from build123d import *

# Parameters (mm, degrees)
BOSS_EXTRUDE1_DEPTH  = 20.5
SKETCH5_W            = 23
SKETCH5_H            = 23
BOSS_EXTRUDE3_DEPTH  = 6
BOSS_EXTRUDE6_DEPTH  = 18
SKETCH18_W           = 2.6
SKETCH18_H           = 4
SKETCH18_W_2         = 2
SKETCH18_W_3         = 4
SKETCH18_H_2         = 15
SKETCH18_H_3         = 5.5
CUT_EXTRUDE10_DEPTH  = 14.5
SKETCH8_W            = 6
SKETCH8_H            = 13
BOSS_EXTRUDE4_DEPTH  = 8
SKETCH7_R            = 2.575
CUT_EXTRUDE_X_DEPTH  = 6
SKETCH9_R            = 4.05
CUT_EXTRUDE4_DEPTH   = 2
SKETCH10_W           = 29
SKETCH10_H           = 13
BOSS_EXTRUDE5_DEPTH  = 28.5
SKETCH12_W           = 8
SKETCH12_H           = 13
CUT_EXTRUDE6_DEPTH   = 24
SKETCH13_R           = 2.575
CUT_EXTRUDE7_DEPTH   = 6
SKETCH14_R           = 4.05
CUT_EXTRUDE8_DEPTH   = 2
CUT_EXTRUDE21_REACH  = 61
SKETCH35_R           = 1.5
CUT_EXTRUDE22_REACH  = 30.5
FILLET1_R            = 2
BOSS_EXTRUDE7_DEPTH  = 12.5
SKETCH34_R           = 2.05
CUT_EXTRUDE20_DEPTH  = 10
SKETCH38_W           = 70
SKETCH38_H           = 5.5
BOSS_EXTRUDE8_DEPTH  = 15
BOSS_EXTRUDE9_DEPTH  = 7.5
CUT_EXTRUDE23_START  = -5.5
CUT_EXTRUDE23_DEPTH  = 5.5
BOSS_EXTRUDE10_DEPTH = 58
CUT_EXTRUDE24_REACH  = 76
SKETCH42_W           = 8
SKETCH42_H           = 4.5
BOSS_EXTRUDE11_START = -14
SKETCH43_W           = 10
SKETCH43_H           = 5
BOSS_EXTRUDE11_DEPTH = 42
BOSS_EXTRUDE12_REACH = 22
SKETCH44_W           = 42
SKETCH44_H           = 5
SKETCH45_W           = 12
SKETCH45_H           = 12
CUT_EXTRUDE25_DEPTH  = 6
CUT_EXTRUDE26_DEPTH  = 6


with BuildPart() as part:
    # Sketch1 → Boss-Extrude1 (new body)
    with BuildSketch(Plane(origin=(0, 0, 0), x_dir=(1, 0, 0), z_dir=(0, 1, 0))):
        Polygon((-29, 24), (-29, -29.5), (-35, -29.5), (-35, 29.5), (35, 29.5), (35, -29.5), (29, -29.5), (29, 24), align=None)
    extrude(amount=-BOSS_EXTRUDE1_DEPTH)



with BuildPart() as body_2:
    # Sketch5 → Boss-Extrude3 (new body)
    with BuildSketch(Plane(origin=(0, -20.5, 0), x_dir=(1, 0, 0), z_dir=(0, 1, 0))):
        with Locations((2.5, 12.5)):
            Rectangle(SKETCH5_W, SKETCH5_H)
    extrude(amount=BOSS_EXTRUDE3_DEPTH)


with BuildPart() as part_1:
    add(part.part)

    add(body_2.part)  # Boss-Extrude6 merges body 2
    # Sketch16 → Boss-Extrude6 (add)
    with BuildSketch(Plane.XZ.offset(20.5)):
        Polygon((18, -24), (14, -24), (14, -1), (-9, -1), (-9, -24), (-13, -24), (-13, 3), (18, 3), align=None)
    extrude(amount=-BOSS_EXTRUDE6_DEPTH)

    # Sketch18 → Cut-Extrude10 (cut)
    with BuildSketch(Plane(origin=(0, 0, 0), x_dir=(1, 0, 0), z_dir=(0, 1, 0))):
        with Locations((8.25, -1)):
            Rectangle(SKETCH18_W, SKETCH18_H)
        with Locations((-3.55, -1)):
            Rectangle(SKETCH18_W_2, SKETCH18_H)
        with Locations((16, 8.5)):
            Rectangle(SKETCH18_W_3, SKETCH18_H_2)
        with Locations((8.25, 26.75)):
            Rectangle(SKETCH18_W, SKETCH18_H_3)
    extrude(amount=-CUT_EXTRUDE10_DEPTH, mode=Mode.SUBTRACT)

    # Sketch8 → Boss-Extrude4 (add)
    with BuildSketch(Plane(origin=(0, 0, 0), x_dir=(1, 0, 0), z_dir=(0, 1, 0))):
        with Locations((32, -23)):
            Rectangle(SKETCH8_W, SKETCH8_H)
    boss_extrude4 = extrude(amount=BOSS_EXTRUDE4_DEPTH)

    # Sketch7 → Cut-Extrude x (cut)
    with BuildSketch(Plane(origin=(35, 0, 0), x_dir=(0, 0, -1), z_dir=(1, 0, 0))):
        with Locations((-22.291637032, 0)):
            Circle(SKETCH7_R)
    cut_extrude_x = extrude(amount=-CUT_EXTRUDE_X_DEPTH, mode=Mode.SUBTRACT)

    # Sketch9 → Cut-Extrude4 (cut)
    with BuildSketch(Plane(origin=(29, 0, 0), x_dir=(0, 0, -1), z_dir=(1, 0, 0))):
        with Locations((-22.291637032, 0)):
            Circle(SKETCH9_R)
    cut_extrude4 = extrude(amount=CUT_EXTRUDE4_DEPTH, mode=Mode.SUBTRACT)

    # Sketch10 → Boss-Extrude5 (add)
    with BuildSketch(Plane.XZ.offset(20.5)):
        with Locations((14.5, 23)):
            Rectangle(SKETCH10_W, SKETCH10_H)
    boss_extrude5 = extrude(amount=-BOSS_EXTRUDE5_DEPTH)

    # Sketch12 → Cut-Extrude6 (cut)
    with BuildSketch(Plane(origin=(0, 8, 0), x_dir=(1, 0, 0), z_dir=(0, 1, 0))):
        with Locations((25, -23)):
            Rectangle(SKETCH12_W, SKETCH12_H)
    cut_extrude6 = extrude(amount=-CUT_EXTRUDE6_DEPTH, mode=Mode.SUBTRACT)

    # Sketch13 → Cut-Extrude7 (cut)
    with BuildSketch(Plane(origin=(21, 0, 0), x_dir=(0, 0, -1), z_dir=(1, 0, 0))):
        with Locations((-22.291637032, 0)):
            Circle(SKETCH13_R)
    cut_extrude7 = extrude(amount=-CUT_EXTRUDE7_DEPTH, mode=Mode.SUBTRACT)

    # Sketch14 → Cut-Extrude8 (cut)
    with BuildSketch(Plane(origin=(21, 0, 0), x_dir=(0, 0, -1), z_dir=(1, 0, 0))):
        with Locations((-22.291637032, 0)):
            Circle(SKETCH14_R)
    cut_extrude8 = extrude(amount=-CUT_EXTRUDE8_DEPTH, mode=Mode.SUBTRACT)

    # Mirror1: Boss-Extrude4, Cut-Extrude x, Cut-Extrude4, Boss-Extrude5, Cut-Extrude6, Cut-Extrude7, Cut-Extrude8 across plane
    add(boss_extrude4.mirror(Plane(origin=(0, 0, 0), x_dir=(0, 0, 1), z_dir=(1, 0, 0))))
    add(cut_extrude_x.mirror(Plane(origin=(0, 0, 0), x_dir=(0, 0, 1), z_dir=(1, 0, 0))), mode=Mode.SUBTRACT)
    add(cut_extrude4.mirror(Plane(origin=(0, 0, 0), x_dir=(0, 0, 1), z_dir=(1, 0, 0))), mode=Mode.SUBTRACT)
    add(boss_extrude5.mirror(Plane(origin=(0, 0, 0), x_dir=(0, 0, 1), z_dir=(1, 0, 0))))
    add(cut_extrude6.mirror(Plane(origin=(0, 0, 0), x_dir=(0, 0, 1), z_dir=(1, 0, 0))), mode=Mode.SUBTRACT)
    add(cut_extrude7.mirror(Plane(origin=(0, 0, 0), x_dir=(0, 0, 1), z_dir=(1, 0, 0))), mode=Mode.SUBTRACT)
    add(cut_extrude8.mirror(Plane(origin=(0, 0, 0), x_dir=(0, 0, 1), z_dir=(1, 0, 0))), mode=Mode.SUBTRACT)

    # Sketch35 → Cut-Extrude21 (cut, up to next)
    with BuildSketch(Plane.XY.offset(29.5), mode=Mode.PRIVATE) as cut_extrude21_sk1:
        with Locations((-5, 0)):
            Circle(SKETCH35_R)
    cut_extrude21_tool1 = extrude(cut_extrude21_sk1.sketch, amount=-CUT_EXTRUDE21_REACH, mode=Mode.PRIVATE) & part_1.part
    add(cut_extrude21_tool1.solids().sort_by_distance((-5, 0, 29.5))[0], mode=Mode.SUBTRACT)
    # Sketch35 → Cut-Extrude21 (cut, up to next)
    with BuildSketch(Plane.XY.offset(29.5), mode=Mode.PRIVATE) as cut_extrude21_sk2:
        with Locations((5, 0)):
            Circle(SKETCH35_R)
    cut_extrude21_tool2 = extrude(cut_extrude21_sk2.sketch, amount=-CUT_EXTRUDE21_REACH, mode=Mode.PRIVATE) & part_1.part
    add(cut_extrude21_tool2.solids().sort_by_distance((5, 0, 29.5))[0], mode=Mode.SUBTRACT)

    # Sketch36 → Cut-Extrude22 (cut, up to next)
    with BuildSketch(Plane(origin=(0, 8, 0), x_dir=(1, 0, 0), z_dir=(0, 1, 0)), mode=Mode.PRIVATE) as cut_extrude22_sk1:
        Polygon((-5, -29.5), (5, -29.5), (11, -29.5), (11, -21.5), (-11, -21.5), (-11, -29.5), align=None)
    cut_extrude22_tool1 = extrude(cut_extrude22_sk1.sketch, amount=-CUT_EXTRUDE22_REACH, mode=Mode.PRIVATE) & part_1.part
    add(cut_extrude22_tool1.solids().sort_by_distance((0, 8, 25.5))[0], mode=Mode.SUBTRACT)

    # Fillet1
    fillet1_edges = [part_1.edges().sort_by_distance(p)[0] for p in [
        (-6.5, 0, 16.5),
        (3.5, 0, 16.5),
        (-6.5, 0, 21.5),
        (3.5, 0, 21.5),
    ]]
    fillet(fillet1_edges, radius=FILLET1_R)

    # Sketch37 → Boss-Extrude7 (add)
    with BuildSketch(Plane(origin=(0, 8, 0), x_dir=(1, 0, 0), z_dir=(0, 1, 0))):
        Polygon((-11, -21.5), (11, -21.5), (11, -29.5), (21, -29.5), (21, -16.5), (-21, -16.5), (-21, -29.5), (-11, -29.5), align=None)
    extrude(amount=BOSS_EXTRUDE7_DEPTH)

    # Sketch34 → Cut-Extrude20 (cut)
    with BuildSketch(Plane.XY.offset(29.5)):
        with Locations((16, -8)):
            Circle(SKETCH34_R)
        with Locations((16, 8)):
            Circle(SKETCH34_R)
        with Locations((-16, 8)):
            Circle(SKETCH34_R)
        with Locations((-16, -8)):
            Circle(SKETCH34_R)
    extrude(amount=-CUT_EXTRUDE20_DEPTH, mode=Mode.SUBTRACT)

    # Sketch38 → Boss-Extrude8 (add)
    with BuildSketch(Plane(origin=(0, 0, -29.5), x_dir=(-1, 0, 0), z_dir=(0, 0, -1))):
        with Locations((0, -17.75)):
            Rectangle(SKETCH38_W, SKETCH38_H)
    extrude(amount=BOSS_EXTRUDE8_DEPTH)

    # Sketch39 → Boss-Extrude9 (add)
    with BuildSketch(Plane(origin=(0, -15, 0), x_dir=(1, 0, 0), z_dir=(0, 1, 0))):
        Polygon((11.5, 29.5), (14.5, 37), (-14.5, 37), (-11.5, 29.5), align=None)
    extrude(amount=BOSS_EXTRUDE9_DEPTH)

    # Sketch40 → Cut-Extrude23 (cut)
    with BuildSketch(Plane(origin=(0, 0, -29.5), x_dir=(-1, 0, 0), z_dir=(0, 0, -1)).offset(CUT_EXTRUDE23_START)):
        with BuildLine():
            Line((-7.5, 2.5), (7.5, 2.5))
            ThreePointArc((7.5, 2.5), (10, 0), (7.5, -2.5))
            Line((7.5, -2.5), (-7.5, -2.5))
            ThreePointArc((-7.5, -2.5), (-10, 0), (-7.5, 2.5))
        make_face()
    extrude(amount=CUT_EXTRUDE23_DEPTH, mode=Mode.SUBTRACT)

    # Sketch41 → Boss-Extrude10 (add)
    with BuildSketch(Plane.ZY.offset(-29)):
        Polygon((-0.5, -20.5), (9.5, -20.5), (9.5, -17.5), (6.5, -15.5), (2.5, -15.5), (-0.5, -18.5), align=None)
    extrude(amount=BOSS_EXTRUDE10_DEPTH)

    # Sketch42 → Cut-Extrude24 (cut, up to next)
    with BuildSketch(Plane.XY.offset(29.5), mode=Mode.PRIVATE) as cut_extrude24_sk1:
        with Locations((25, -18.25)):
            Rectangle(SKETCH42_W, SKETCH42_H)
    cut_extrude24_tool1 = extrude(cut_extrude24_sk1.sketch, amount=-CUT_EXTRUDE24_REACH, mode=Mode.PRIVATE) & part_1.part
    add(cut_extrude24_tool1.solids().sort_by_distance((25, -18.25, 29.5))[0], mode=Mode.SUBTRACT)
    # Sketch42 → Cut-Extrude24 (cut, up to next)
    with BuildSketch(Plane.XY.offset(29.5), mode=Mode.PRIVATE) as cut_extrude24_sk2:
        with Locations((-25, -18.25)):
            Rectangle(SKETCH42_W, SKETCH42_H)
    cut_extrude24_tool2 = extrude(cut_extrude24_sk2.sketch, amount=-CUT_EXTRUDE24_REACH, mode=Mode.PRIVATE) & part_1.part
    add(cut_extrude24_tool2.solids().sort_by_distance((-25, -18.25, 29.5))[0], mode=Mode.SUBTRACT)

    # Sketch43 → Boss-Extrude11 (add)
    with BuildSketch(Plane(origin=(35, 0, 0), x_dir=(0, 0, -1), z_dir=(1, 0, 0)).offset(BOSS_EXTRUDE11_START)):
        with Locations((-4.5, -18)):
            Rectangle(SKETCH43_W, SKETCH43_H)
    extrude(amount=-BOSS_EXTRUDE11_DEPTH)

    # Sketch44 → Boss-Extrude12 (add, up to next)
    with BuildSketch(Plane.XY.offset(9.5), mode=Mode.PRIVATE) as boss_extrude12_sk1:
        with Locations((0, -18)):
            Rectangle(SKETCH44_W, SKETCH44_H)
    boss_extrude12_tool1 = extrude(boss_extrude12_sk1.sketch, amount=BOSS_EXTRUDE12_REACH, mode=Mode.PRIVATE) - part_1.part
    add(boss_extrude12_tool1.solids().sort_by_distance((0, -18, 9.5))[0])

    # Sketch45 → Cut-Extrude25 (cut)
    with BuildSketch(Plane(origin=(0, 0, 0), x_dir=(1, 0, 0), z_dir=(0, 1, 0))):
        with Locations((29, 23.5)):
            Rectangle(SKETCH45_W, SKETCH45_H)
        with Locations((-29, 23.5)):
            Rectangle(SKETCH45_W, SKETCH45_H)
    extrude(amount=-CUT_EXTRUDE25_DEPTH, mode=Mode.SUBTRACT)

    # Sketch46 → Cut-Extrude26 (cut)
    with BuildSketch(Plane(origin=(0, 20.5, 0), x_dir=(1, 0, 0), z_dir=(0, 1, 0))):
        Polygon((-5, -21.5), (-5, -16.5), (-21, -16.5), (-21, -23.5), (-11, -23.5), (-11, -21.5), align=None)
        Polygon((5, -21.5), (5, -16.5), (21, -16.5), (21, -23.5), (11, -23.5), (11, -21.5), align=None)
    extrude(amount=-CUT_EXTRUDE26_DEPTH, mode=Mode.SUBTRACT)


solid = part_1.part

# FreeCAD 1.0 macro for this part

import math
import FreeCAD as App
import Part
import Sketcher

V = App.Vector
Q = App.Units.Quantity


def edges_at(feature, points):
    """Names of the edges that pass closest to the given points."""
    edges = feature.Shape.Edges
    near = lambda p: min(range(len(edges)), key=lambda i: edges[i].distToShape(Part.Vertex(*p))[0])
    return sorted({f"Edge{near(p) + 1}" for p in points})

doc = App.newDocument("Part")
body = doc.addObject("PartDesign::Body", "Body")

# Sketch on XZ plane
sketch1 = body.newObject("Sketcher::SketchObject", "Sketch")
sketch1.AttachmentSupport = (doc.getObject("XZ_Plane"), [""])
sketch1.MapMode = "FlatFace"
sketch1.addGeometry([
    Part.LineSegment(V(-29, 29.5, 0), V(-29, -24, 0)),  # 0
    Part.LineSegment(V(-29, -24, 0), V(29, -24, 0)),  # 1
    Part.LineSegment(V(29, -24, 0), V(29, 29.5, 0)),  # 2
    Part.LineSegment(V(29, 29.5, 0), V(35, 29.5, 0)),  # 3
    Part.LineSegment(V(35, 29.5, 0), V(35, -29.5, 0)),  # 4
    Part.LineSegment(V(35, -29.5, 0), V(-35, -29.5, 0)),  # 5
    Part.LineSegment(V(-35, -29.5, 0), V(-35, 29.5, 0)),  # 6
    Part.LineSegment(V(-35, 29.5, 0), V(-29, 29.5, 0)),  # 7
], False)
sketch1.addConstraint([
    Sketcher.Constraint("Coincident", 0, 2, 1, 1),
    Sketcher.Constraint("Coincident", 1, 2, 2, 1),
    Sketcher.Constraint("Coincident", 2, 2, 3, 1),
    Sketcher.Constraint("Coincident", 3, 2, 4, 1),
    Sketcher.Constraint("Coincident", 4, 2, 5, 1),
    Sketcher.Constraint("Coincident", 5, 2, 6, 1),
    Sketcher.Constraint("Coincident", 6, 2, 7, 1),
    Sketcher.Constraint("Coincident", 7, 2, 0, 1),
    Sketcher.Constraint("Vertical", 0),
    Sketcher.Constraint("Horizontal", 1),
    Sketcher.Constraint("Vertical", 2),
    Sketcher.Constraint("Horizontal", 3),
    Sketcher.Constraint("Vertical", 4),
    Sketcher.Constraint("Horizontal", 5),
    Sketcher.Constraint("Vertical", 6),
    Sketcher.Constraint("Horizontal", 7),
    Sketcher.Constraint("Symmetric", 3, 2, 5, 2, -1, 1),
    Sketcher.Constraint("Symmetric", 2, 2, 7, 2, -2),
    Sketcher.Constraint("DistanceX", 1, 1, 1, 2, Q("58 mm")),
    Sketcher.Constraint("DistanceX", 3, 1, 3, 2, Q("6 mm")),
    Sketcher.Constraint("DistanceY", 4, 2, 4, 1, Q("59 mm")),
    Sketcher.Constraint("DistanceY", 0, 2, 0, 1, Q("53.5 mm")),
])
pad1 = body.newObject("PartDesign::Pad", "Pad")
pad1.Profile = sketch1
pad1.Length = 20.5
body2 = doc.addObject("PartDesign::Body", "Body001")

# Sketch on XZ plane
sketch2 = body2.newObject("Sketcher::SketchObject", "Sketch001")
sketch2.AttachmentSupport = (doc.getObject("XZ_Plane001"), [""])
sketch2.MapMode = "FlatFace"
sketch2.AttachmentOffset = App.Placement(V(0, 0, 20.5), App.Rotation())
sketch2.addGeometry([
    Part.LineSegment(V(-9, -24, 0), V(-9, -1, 0)),
    Part.LineSegment(V(-9, -1, 0), V(14, -1, 0)),
    Part.LineSegment(V(14, -1, 0), V(14, -24, 0)),
    Part.LineSegment(V(14, -24, 0), V(-9, -24, 0)),
], False)
sketch2.addConstraint([
    Sketcher.Constraint("Coincident", 0, 2, 1, 1),
    Sketcher.Constraint("Coincident", 1, 2, 2, 1),
    Sketcher.Constraint("Coincident", 2, 2, 3, 1),
    Sketcher.Constraint("Coincident", 3, 2, 0, 1),
    Sketcher.Constraint("Vertical", 0),
    Sketcher.Constraint("Horizontal", 1),
    Sketcher.Constraint("Vertical", 2),
    Sketcher.Constraint("Horizontal", 3),
    Sketcher.Constraint("Equal", 3, 0),
    Sketcher.Constraint("DistanceX", 1, 1, 1, 2, Q("23 mm")),
    Sketcher.Constraint("DistanceX", 0, 2, -1, 1, Q("9 mm")),
    Sketcher.Constraint("DistanceY", 0, 2, -1, 1, Q("1 mm")),
])
pad2 = body2.newObject("PartDesign::Pad", "Pad001")
pad2.Profile = sketch2
pad2.Length = 6
pad2.Reversed = True
body.AllowCompound = True
doc.recompute()

boolean = body.newObject("PartDesign::Boolean", "Boolean")
boolean.Type = "Fuse"
boolean.addObjects([body2])

# Sketch on XZ plane
sketch3 = body.newObject("Sketcher::SketchObject", "Sketch002")
sketch3.AttachmentSupport = (doc.getObject("XZ_Plane"), [""])
sketch3.MapMode = "FlatFace"
sketch3.AttachmentOffset = App.Placement(V(0, 0, 20.5), App.Rotation())
sketch3.addGeometry([
    Part.LineSegment(V(14, -24, 0), V(18, -24, 0)),  # 0
    Part.LineSegment(V(18, -24, 0), V(18, 3, 0)),  # 1
    Part.LineSegment(V(18, 3, 0), V(-13, 3, 0)),  # 2
    Part.LineSegment(V(-13, 3, 0), V(-13, -24, 0)),  # 3
    Part.LineSegment(V(-13, -24, 0), V(-9, -24, 0)),  # 4
    Part.LineSegment(V(-9, -24, 0), V(-9, -1, 0)),  # 5
    Part.LineSegment(V(-9, -1, 0), V(14, -1, 0)),  # 6
    Part.LineSegment(V(14, -1, 0), V(14, -24, 0)),  # 7
], False)
sketch3.addConstraint([
    Sketcher.Constraint("Coincident", 0, 2, 1, 1),
    Sketcher.Constraint("Coincident", 1, 2, 2, 1),
    Sketcher.Constraint("Coincident", 2, 2, 3, 1),
    Sketcher.Constraint("Coincident", 3, 2, 4, 1),
    Sketcher.Constraint("Coincident", 4, 2, 5, 1),
    Sketcher.Constraint("Coincident", 5, 2, 6, 1),
    Sketcher.Constraint("Coincident", 6, 2, 7, 1),
    Sketcher.Constraint("Coincident", 7, 2, 0, 1),
    Sketcher.Constraint("Horizontal", 0),
    Sketcher.Constraint("Vertical", 1),
    Sketcher.Constraint("Horizontal", 2),
    Sketcher.Constraint("Vertical", 3),
    Sketcher.Constraint("Horizontal", 4),
    Sketcher.Constraint("Vertical", 5),
    Sketcher.Constraint("Horizontal", 6),
    Sketcher.Constraint("Vertical", 7),
    Sketcher.Constraint("Horizontal", 0, 2, 3, 2),
    Sketcher.Constraint("Equal", 0, 4),
    Sketcher.Constraint("Equal", 6, 5),
    Sketcher.Constraint("DistanceX", 0, 1, 0, 2, Q("4 mm")),
    Sketcher.Constraint("DistanceX", 2, 2, 2, 1, Q("31 mm")),
    Sketcher.Constraint("DistanceY", 1, 1, 1, 2, Q("27 mm")),
    Sketcher.Constraint("DistanceX", -1, 1, 0, 2, Q("18 mm")),
    Sketcher.Constraint("DistanceY", 0, 2, -1, 1, Q("24 mm")),
])
pad3 = body.newObject("PartDesign::Pad", "Pad002")
pad3.Profile = sketch3
pad3.Length = 18
pad3.Reversed = True

# Sketch on XZ plane
sketch4 = body.newObject("Sketcher::SketchObject", "Sketch003")
sketch4.AttachmentSupport = (doc.getObject("XZ_Plane"), [""])
sketch4.MapMode = "FlatFace"
sketch4.addGeometry([
    Part.LineSegment(V(6.95, -1, 0), V(6.95, 3, 0)),  # 0
    Part.LineSegment(V(6.95, 3, 0), V(9.55, 3, 0)),  # 1
    Part.LineSegment(V(9.55, 3, 0), V(9.55, -1, 0)),  # 2
    Part.LineSegment(V(9.55, -1, 0), V(6.95, -1, 0)),  # 3
    Part.LineSegment(V(-4.55, -1, 0), V(-4.55, 3, 0)),  # 4
    Part.LineSegment(V(-4.55, 3, 0), V(-2.55, 3, 0)),  # 5
    Part.LineSegment(V(-2.55, 3, 0), V(-2.55, -1, 0)),  # 6
    Part.LineSegment(V(-2.55, -1, 0), V(-4.55, -1, 0)),  # 7
    Part.LineSegment(V(14, -16, 0), V(14, -1, 0)),  # 8
    Part.LineSegment(V(14, -1, 0), V(18, -1, 0)),  # 9
    Part.LineSegment(V(18, -1, 0), V(18, -16, 0)),  # 10
    Part.LineSegment(V(18, -16, 0), V(14, -16, 0)),  # 11
    Part.LineSegment(V(6.95, -29.5, 0), V(6.95, -24, 0)),  # 12
    Part.LineSegment(V(6.95, -24, 0), V(9.55, -24, 0)),  # 13
    Part.LineSegment(V(9.55, -24, 0), V(9.55, -29.5, 0)),  # 14
    Part.LineSegment(V(9.55, -29.5, 0), V(6.95, -29.5, 0)),  # 15
], False)
sketch4.addConstraint([
    Sketcher.Constraint("Coincident", 0, 2, 1, 1),
    Sketcher.Constraint("Coincident", 1, 2, 2, 1),
    Sketcher.Constraint("Coincident", 2, 2, 3, 1),
    Sketcher.Constraint("Coincident", 3, 2, 0, 1),
    Sketcher.Constraint("Coincident", 4, 2, 5, 1),
    Sketcher.Constraint("Coincident", 5, 2, 6, 1),
    Sketcher.Constraint("Coincident", 6, 2, 7, 1),
    Sketcher.Constraint("Coincident", 7, 2, 4, 1),
    Sketcher.Constraint("Coincident", 8, 2, 9, 1),
    Sketcher.Constraint("Coincident", 9, 2, 10, 1),
    Sketcher.Constraint("Coincident", 10, 2, 11, 1),
    Sketcher.Constraint("Coincident", 11, 2, 8, 1),
    Sketcher.Constraint("Coincident", 12, 2, 13, 1),
    Sketcher.Constraint("Coincident", 13, 2, 14, 1),
    Sketcher.Constraint("Coincident", 14, 2, 15, 1),
    Sketcher.Constraint("Coincident", 15, 2, 12, 1),
    Sketcher.Constraint("Vertical", 0),
    Sketcher.Constraint("Horizontal", 1),
    Sketcher.Constraint("Vertical", 2),
    Sketcher.Constraint("Horizontal", 3),
    Sketcher.Constraint("Vertical", 4),
    Sketcher.Constraint("Horizontal", 5),
    Sketcher.Constraint("Vertical", 6),
    Sketcher.Constraint("Horizontal", 7),
    Sketcher.Constraint("Vertical", 8),
    Sketcher.Constraint("Horizontal", 9),
    Sketcher.Constraint("Vertical", 10),
    Sketcher.Constraint("Horizontal", 11),
    Sketcher.Constraint("Vertical", 12),
    Sketcher.Constraint("Horizontal", 13),
    Sketcher.Constraint("Vertical", 14),
    Sketcher.Constraint("Horizontal", 15),
    Sketcher.Constraint("Horizontal", 1, 2, 4, 2),
    Sketcher.Constraint("Horizontal", 3, 2, 6, 2),
    Sketcher.Constraint("Horizontal", 7, 2, 8, 2),
    Sketcher.Constraint("Vertical", 3, 2, 12, 2),
    Sketcher.Constraint("Vertical", 2, 2, 13, 2),
    Sketcher.Constraint("Equal", 11, 0),
    Sketcher.Constraint("DistanceX", 5, 1, 5, 2, Q("2 mm")),
    Sketcher.Constraint("DistanceX", 9, 1, 9, 2, Q("4 mm")),
    Sketcher.Constraint("DistanceY", 8, 1, 8, 2, Q("15 mm")),
    Sketcher.Constraint("DistanceX", 1, 1, 1, 2, Q("2.6 mm")),
    Sketcher.Constraint("DistanceY", 12, 1, 12, 2, Q("5.5 mm")),
    Sketcher.Constraint("DistanceY", -1, 1, 0, 2, Q("3 mm")),
    Sketcher.Constraint("DistanceX", -1, 1, 8, 2, Q("14 mm")),
    Sketcher.Constraint("DistanceY", 12, 2, -1, 1, Q("24 mm")),
    Sketcher.Constraint("DistanceX", 4, 2, 0, 2, Q("11.5 mm")),
    Sketcher.Constraint("DistanceX", -1, 1, 0, 2, Q("6.95 mm")),
])
pocket1 = body.newObject("PartDesign::Pocket", "Pocket")
pocket1.Profile = sketch4
pocket1.Length = 14.5
pocket1.Reversed = True

# Sketch on XZ plane
sketch5 = body.newObject("Sketcher::SketchObject", "Sketch004")
sketch5.AttachmentSupport = (doc.getObject("XZ_Plane"), [""])
sketch5.MapMode = "FlatFace"
sketch5.addGeometry([
    Part.LineSegment(V(29, 16.5, 0), V(29, 29.5, 0)),
    Part.LineSegment(V(29, 29.5, 0), V(35, 29.5, 0)),
    Part.LineSegment(V(35, 29.5, 0), V(35, 16.5, 0)),
    Part.LineSegment(V(35, 16.5, 0), V(29, 16.5, 0)),
], False)
sketch5.addConstraint([
    Sketcher.Constraint("Coincident", 0, 2, 1, 1),
    Sketcher.Constraint("Coincident", 1, 2, 2, 1),
    Sketcher.Constraint("Coincident", 2, 2, 3, 1),
    Sketcher.Constraint("Coincident", 3, 2, 0, 1),
    Sketcher.Constraint("Vertical", 0),
    Sketcher.Constraint("Horizontal", 1),
    Sketcher.Constraint("Vertical", 2),
    Sketcher.Constraint("Horizontal", 3),
    Sketcher.Constraint("DistanceX", 1, 1, 1, 2, Q("6 mm")),
    Sketcher.Constraint("DistanceY", 0, 1, 0, 2, Q("13 mm")),
    Sketcher.Constraint("DistanceX", -1, 1, 0, 2, Q("29 mm")),
    Sketcher.Constraint("DistanceY", -1, 1, 0, 2, Q("29.5 mm")),
])
pad4 = body.newObject("PartDesign::Pad", "Pad003")
pad4.Profile = sketch5
pad4.Length = 8
pad4.Reversed = True

# Sketch on YZ plane
sketch6 = body.newObject("Sketcher::SketchObject", "Sketch005")
sketch6.AttachmentSupport = (doc.getObject("YZ_Plane"), [""])
sketch6.MapMode = "FlatFace"
sketch6.AttachmentOffset = App.Placement(V(0, 0, 35), App.Rotation())
sketch6.addGeometry(Part.Circle(V(0, 22.291637, 0), V(0, 0, 1), 2.575), False)
sketch6.addConstraint([
    Sketcher.Constraint("PointOnObject", 0, 3, -2),
    Sketcher.Constraint("Diameter", 0, Q("5.15 mm")),
    Sketcher.Constraint("DistanceY", -1, 1, 0, 3, Q("22.291637 mm")),
])
pocket2 = body.newObject("PartDesign::Pocket", "Pocket001")
pocket2.Profile = sketch6
pocket2.Length = 6

# Sketch on YZ plane
sketch7 = body.newObject("Sketcher::SketchObject", "Sketch006")
sketch7.AttachmentSupport = (doc.getObject("YZ_Plane"), [""])
sketch7.MapMode = "FlatFace"
sketch7.AttachmentOffset = App.Placement(V(0, 0, 29), App.Rotation())
sketch7.addGeometry(Part.Circle(V(0, 22.291637, 0), V(0, 0, 1), 4.05), False)
sketch7.addConstraint([
    Sketcher.Constraint("PointOnObject", 0, 3, -2),
    Sketcher.Constraint("Diameter", 0, Q("8.1 mm")),
    Sketcher.Constraint("DistanceY", -1, 1, 0, 3, Q("22.291637 mm")),
])
pocket3 = body.newObject("PartDesign::Pocket", "Pocket002")
pocket3.Profile = sketch7
pocket3.Length = 2
pocket3.Reversed = True

# Sketch on XZ plane
sketch8 = body.newObject("Sketcher::SketchObject", "Sketch007")
sketch8.AttachmentSupport = (doc.getObject("XZ_Plane"), [""])
sketch8.MapMode = "FlatFace"
sketch8.AttachmentOffset = App.Placement(V(0, 0, 20.5), App.Rotation())
sketch8.addGeometry([
    Part.LineSegment(V(0, 29.5, 0), V(0, 16.5, 0)),
    Part.LineSegment(V(0, 16.5, 0), V(29, 16.5, 0)),
    Part.LineSegment(V(29, 16.5, 0), V(29, 29.5, 0)),
    Part.LineSegment(V(29, 29.5, 0), V(0, 29.5, 0)),
], False)
sketch8.addConstraint([
    Sketcher.Constraint("Coincident", 0, 2, 1, 1),
    Sketcher.Constraint("Coincident", 1, 2, 2, 1),
    Sketcher.Constraint("Coincident", 2, 2, 3, 1),
    Sketcher.Constraint("Coincident", 3, 2, 0, 1),
    Sketcher.Constraint("Vertical", 0),
    Sketcher.Constraint("Horizontal", 1),
    Sketcher.Constraint("Vertical", 2),
    Sketcher.Constraint("Horizontal", 3),
    Sketcher.Constraint("PointOnObject", 0, 2, -2),
    Sketcher.Constraint("DistanceX", 1, 1, 1, 2, Q("29 mm")),
    Sketcher.Constraint("DistanceY", 0, 2, 0, 1, Q("13 mm")),
    Sketcher.Constraint("DistanceY", -1, 1, 0, 2, Q("16.5 mm")),
])
pad5 = body.newObject("PartDesign::Pad", "Pad004")
pad5.Profile = sketch8
pad5.Length = 28.5
pad5.Reversed = True

# Sketch on XZ plane
sketch9 = body.newObject("Sketcher::SketchObject", "Sketch008")
sketch9.AttachmentSupport = (doc.getObject("XZ_Plane"), [""])
sketch9.MapMode = "FlatFace"
sketch9.AttachmentOffset = App.Placement(V(0, 0, -8), App.Rotation())
sketch9.addGeometry([
    Part.LineSegment(V(21, 16.5, 0), V(21, 29.5, 0)),
    Part.LineSegment(V(21, 29.5, 0), V(29, 29.5, 0)),
    Part.LineSegment(V(29, 29.5, 0), V(29, 16.5, 0)),
    Part.LineSegment(V(29, 16.5, 0), V(21, 16.5, 0)),
], False)
sketch9.addConstraint([
    Sketcher.Constraint("Coincident", 0, 2, 1, 1),
    Sketcher.Constraint("Coincident", 1, 2, 2, 1),
    Sketcher.Constraint("Coincident", 2, 2, 3, 1),
    Sketcher.Constraint("Coincident", 3, 2, 0, 1),
    Sketcher.Constraint("Vertical", 0),
    Sketcher.Constraint("Horizontal", 1),
    Sketcher.Constraint("Vertical", 2),
    Sketcher.Constraint("Horizontal", 3),
    Sketcher.Constraint("DistanceX", 1, 1, 1, 2, Q("8 mm")),
    Sketcher.Constraint("DistanceY", 0, 1, 0, 2, Q("13 mm")),
    Sketcher.Constraint("DistanceX", -1, 1, 0, 2, Q("21 mm")),
    Sketcher.Constraint("DistanceY", -1, 1, 0, 2, Q("29.5 mm")),
])
pocket4 = body.newObject("PartDesign::Pocket", "Pocket003")
pocket4.Profile = sketch9
pocket4.Length = 24
pocket4.Reversed = True

# Sketch on YZ plane
sketch10 = body.newObject("Sketcher::SketchObject", "Sketch009")
sketch10.AttachmentSupport = (doc.getObject("YZ_Plane"), [""])
sketch10.MapMode = "FlatFace"
sketch10.AttachmentOffset = App.Placement(V(0, 0, 21), App.Rotation())
sketch10.addGeometry(Part.Circle(V(0, 22.291637, 0), V(0, 0, 1), 2.575), False)
sketch10.addConstraint([
    Sketcher.Constraint("PointOnObject", 0, 3, -2),
    Sketcher.Constraint("Diameter", 0, Q("5.15 mm")),
    Sketcher.Constraint("DistanceY", -1, 1, 0, 3, Q("22.291637 mm")),
])
pocket5 = body.newObject("PartDesign::Pocket", "Pocket004")
pocket5.Profile = sketch10
pocket5.Length = 6

# Sketch on YZ plane
sketch11 = body.newObject("Sketcher::SketchObject", "Sketch010")
sketch11.AttachmentSupport = (doc.getObject("YZ_Plane"), [""])
sketch11.MapMode = "FlatFace"
sketch11.AttachmentOffset = App.Placement(V(0, 0, 21), App.Rotation())
sketch11.addGeometry(Part.Circle(V(0, 22.291637, 0), V(0, 0, 1), 4.05), False)
sketch11.addConstraint([
    Sketcher.Constraint("PointOnObject", 0, 3, -2),
    Sketcher.Constraint("Diameter", 0, Q("8.1 mm")),
    Sketcher.Constraint("DistanceY", -1, 1, 0, 3, Q("22.291637 mm")),
])
pocket6 = body.newObject("PartDesign::Pocket", "Pocket005")
pocket6.Profile = sketch11
pocket6.Length = 2
doc.recompute()

mirrored = body.newObject("PartDesign::Mirrored", "Mirrored")
mirrored.Originals = [pad4, pocket2, pocket3, pad5, pocket4, pocket5, pocket6]
mirrored.MirrorPlane = (doc.getObject("YZ_Plane"), [""])
body.Tip = mirrored

# Sketch on XY plane
sketch12 = body.newObject("Sketcher::SketchObject", "Sketch011")
sketch12.AttachmentSupport = (doc.getObject("XY_Plane"), [""])
sketch12.MapMode = "FlatFace"
sketch12.AttachmentOffset = App.Placement(V(0, 0, 29.5), App.Rotation())
sketch12.addGeometry(Part.Circle(V(-5, 0, 0), V(0, 0, 1), 1.5), False)
sketch12.addConstraint([
    Sketcher.Constraint("PointOnObject", 0, 3, -1),
    Sketcher.Constraint("Diameter", 0, Q("3 mm")),
    Sketcher.Constraint("DistanceX", 0, 3, -1, 1, Q("5 mm")),
])
pocket7 = body.newObject("PartDesign::Pocket", "Pocket006")
pocket7.Profile = sketch12
pocket7.Type = "UpToFirst"

# Sketch on XY plane
sketch13 = body.newObject("Sketcher::SketchObject", "Sketch012")
sketch13.AttachmentSupport = (doc.getObject("XY_Plane"), [""])
sketch13.MapMode = "FlatFace"
sketch13.AttachmentOffset = App.Placement(V(0, 0, 29.5), App.Rotation())
sketch13.addGeometry(Part.Circle(V(5, 0, 0), V(0, 0, 1), 1.5), False)
sketch13.addConstraint([
    Sketcher.Constraint("PointOnObject", 0, 3, -1),
    Sketcher.Constraint("Diameter", 0, Q("3 mm")),
    Sketcher.Constraint("DistanceX", -1, 1, 0, 3, Q("5 mm")),
])
pocket8 = body.newObject("PartDesign::Pocket", "Pocket007")
pocket8.Profile = sketch13
pocket8.Type = "UpToFirst"

# Sketch on XZ plane
sketch14 = body.newObject("Sketcher::SketchObject", "Sketch013")
sketch14.AttachmentSupport = (doc.getObject("XZ_Plane"), [""])
sketch14.MapMode = "FlatFace"
sketch14.AttachmentOffset = App.Placement(V(0, 0, -8), App.Rotation())
sketch14.addGeometry([
    Part.LineSegment(V(11, 29.5, 0), V(11, 21.5, 0)),
    Part.LineSegment(V(11, 21.5, 0), V(-11, 21.5, 0)),
    Part.LineSegment(V(-11, 21.5, 0), V(-11, 29.5, 0)),
    Part.LineSegment(V(-11, 29.5, 0), V(11, 29.5, 0)),
], False)
sketch14.addConstraint([
    Sketcher.Constraint("Coincident", 0, 2, 1, 1),
    Sketcher.Constraint("Coincident", 1, 2, 2, 1),
    Sketcher.Constraint("Coincident", 2, 2, 3, 1),
    Sketcher.Constraint("Coincident", 3, 2, 0, 1),
    Sketcher.Constraint("Vertical", 0),
    Sketcher.Constraint("Horizontal", 1),
    Sketcher.Constraint("Vertical", 2),
    Sketcher.Constraint("Horizontal", 3),
    Sketcher.Constraint("DistanceX", 1, 2, 1, 1, Q("22 mm")),
    Sketcher.Constraint("DistanceY", 0, 2, 0, 1, Q("8 mm")),
    Sketcher.Constraint("DistanceX", -1, 1, 0, 2, Q("11 mm")),
    Sketcher.Constraint("DistanceY", -1, 1, 0, 2, Q("21.5 mm")),
])
pocket9 = body.newObject("PartDesign::Pocket", "Pocket008")
pocket9.Profile = sketch14
pocket9.Type = "UpToFirst"
pocket9.Reversed = True
doc.recompute()

fillet = body.newObject("PartDesign::Fillet", "Fillet")
fillet.Base = (pocket9, edges_at(pocket9, [
    (-6.5, 0, 16.5),
    (3.5, 0, 16.5),
    (-6.5, 0, 21.5),
    (3.5, 0, 21.5),
]))
fillet.Radius = 2

# Sketch on XZ plane
sketch15 = body.newObject("Sketcher::SketchObject", "Sketch014")
sketch15.AttachmentSupport = (doc.getObject("XZ_Plane"), [""])
sketch15.MapMode = "FlatFace"
sketch15.AttachmentOffset = App.Placement(V(0, 0, -8), App.Rotation())
sketch15.addGeometry([
    Part.LineSegment(V(-11, 21.5, 0), V(11, 21.5, 0)),  # 0
    Part.LineSegment(V(11, 21.5, 0), V(11, 29.5, 0)),  # 1
    Part.LineSegment(V(11, 29.5, 0), V(21, 29.5, 0)),  # 2
    Part.LineSegment(V(21, 29.5, 0), V(21, 16.5, 0)),  # 3
    Part.LineSegment(V(21, 16.5, 0), V(-21, 16.5, 0)),  # 4
    Part.LineSegment(V(-21, 16.5, 0), V(-21, 29.5, 0)),  # 5
    Part.LineSegment(V(-21, 29.5, 0), V(-11, 29.5, 0)),  # 6
    Part.LineSegment(V(-11, 29.5, 0), V(-11, 21.5, 0)),  # 7
], False)
sketch15.addConstraint([
    Sketcher.Constraint("Coincident", 0, 2, 1, 1),
    Sketcher.Constraint("Coincident", 1, 2, 2, 1),
    Sketcher.Constraint("Coincident", 2, 2, 3, 1),
    Sketcher.Constraint("Coincident", 3, 2, 4, 1),
    Sketcher.Constraint("Coincident", 4, 2, 5, 1),
    Sketcher.Constraint("Coincident", 5, 2, 6, 1),
    Sketcher.Constraint("Coincident", 6, 2, 7, 1),
    Sketcher.Constraint("Coincident", 7, 2, 0, 1),
    Sketcher.Constraint("Horizontal", 0),
    Sketcher.Constraint("Vertical", 1),
    Sketcher.Constraint("Horizontal", 2),
    Sketcher.Constraint("Vertical", 3),
    Sketcher.Constraint("Horizontal", 4),
    Sketcher.Constraint("Vertical", 5),
    Sketcher.Constraint("Horizontal", 6),
    Sketcher.Constraint("Vertical", 7),
    Sketcher.Constraint("Symmetric", 2, 2, 5, 2, -2),
    Sketcher.Constraint("Equal", 2, 6),
    Sketcher.Constraint("DistanceX", 0, 1, 0, 2, Q("22 mm")),
    Sketcher.Constraint("DistanceX", 2, 1, 2, 2, Q("10 mm")),
    Sketcher.Constraint("DistanceY", 1, 1, 1, 2, Q("8 mm")),
    Sketcher.Constraint("DistanceY", 3, 2, 3, 1, Q("13 mm")),
    Sketcher.Constraint("DistanceY", -1, 1, 0, 2, Q("21.5 mm")),
])
pad6 = body.newObject("PartDesign::Pad", "Pad005")
pad6.Profile = sketch15
pad6.Length = 12.5
pad6.Reversed = True

# Sketch on XY plane
sketch16 = body.newObject("Sketcher::SketchObject", "Sketch015")
sketch16.AttachmentSupport = (doc.getObject("XY_Plane"), [""])
sketch16.MapMode = "FlatFace"
sketch16.AttachmentOffset = App.Placement(V(0, 0, 29.5), App.Rotation())
sketch16.addGeometry([
    Part.Circle(V(16, -8, 0), V(0, 0, 1), 2.05),
    Part.Circle(V(16, 8, 0), V(0, 0, 1), 2.05),
    Part.Circle(V(-16, 8, 0), V(0, 0, 1), 2.05),
    Part.Circle(V(-16, -8, 0), V(0, 0, 1), 2.05),
], False)
sketch16.addConstraint([
    Sketcher.Constraint("Equal", 0, 1),
    Sketcher.Constraint("Equal", 1, 2),
    Sketcher.Constraint("Equal", 2, 3),
    Sketcher.Constraint("Symmetric", 0, 3, 2, 3, -1, 1),
    Sketcher.Constraint("Symmetric", 1, 3, 3, 3, -1, 1),
    Sketcher.Constraint("Symmetric", 1, 3, 2, 3, -2),
    Sketcher.Constraint("Diameter", 0, Q("4.1 mm")),
    Sketcher.Constraint("DistanceX", -1, 1, 0, 3, Q("16 mm")),
    Sketcher.Constraint("DistanceY", 0, 3, -1, 1, Q("8 mm")),
])
pocket10 = body.newObject("PartDesign::Pocket", "Pocket009")
pocket10.Profile = sketch16
pocket10.Length = 10

# Sketch on XY plane
sketch17 = body.newObject("Sketcher::SketchObject", "Sketch016")
sketch17.AttachmentSupport = (doc.getObject("XY_Plane"), [""])
sketch17.MapMode = "FlatFace"
sketch17.AttachmentOffset = App.Placement(V(0, 0, -29.5), App.Rotation())
sketch17.addGeometry([
    Part.LineSegment(V(35, -15, 0), V(35, -20.5, 0)),
    Part.LineSegment(V(35, -20.5, 0), V(-35, -20.5, 0)),
    Part.LineSegment(V(-35, -20.5, 0), V(-35, -15, 0)),
    Part.LineSegment(V(-35, -15, 0), V(35, -15, 0)),
], False)
sketch17.addConstraint([
    Sketcher.Constraint("Coincident", 0, 2, 1, 1),
    Sketcher.Constraint("Coincident", 1, 2, 2, 1),
    Sketcher.Constraint("Coincident", 2, 2, 3, 1),
    Sketcher.Constraint("Coincident", 3, 2, 0, 1),
    Sketcher.Constraint("Vertical", 0),
    Sketcher.Constraint("Horizontal", 1),
    Sketcher.Constraint("Vertical", 2),
    Sketcher.Constraint("Horizontal", 3),
    Sketcher.Constraint("DistanceX", 1, 2, 1, 1, Q("70 mm")),
    Sketcher.Constraint("DistanceY", 0, 2, 0, 1, Q("5.5 mm")),
    Sketcher.Constraint("DistanceX", -1, 1, 0, 2, Q("35 mm")),
    Sketcher.Constraint("DistanceY", 2, 2, -1, 1, Q("15 mm")),
])
pad7 = body.newObject("PartDesign::Pad", "Pad006")
pad7.Profile = sketch17
pad7.Length = 15
pad7.Reversed = True

# Sketch on XZ plane
sketch18 = body.newObject("Sketcher::SketchObject", "Sketch017")
sketch18.AttachmentSupport = (doc.getObject("XZ_Plane"), [""])
sketch18.MapMode = "FlatFace"
sketch18.AttachmentOffset = App.Placement(V(0, 0, 15), App.Rotation())
sketch18.addGeometry([
    Part.LineSegment(V(11.5, -29.5, 0), V(14.5, -37, 0)),
    Part.LineSegment(V(14.5, -37, 0), V(-14.5, -37, 0)),
    Part.LineSegment(V(-14.5, -37, 0), V(-11.5, -29.5, 0)),
    Part.LineSegment(V(-11.5, -29.5, 0), V(11.5, -29.5, 0)),
], False)
sketch18.addConstraint([
    Sketcher.Constraint("Coincident", 0, 2, 1, 1),
    Sketcher.Constraint("Coincident", 1, 2, 2, 1),
    Sketcher.Constraint("Coincident", 2, 2, 3, 1),
    Sketcher.Constraint("Coincident", 3, 2, 0, 1),
    Sketcher.Constraint("Horizontal", 1),
    Sketcher.Constraint("Horizontal", 3),
    Sketcher.Constraint("Equal", 0, 2),
    Sketcher.Constraint("DistanceX", 1, 2, 1, 1, Q("29 mm")),
    Sketcher.Constraint("DistanceX", 3, 1, 3, 2, Q("23 mm")),
    Sketcher.Constraint("DistanceY", 0, 2, -1, 1, Q("37 mm")),
    Sketcher.Constraint("DistanceX", -1, 1, 0, 2, Q("14.5 mm")),
    Sketcher.Constraint("DistanceY", 2, 2, -1, 1, Q("29.5 mm")),
])
pad8 = body.newObject("PartDesign::Pad", "Pad007")
pad8.Profile = sketch18
pad8.Length = 7.5
pad8.Reversed = True

# Sketch on XY plane
sketch19 = body.newObject("Sketcher::SketchObject", "Sketch018")
sketch19.AttachmentSupport = (doc.getObject("XY_Plane"), [""])
sketch19.MapMode = "FlatFace"
sketch19.AttachmentOffset = App.Placement(V(0, 0, -24), App.Rotation())
sketch19.addGeometry([
    Part.LineSegment(V(-7.5, 2.5, 0), V(7.5, 2.5, 0)),
    Part.ArcOfCircle(Part.Circle(V(7.5, 0, 0), V(0, 0, 1), 2.5), math.radians(-90), math.radians(90)),
    Part.LineSegment(V(7.5, -2.5, 0), V(-7.5, -2.5, 0)),
    Part.ArcOfCircle(Part.Circle(V(-7.5, 0, 0), V(0, 0, 1), 2.5), math.radians(90), math.radians(270)),
], False)
sketch19.addConstraint([
    Sketcher.Constraint("Tangent", 0, 2, 1, 2),
    Sketcher.Constraint("Tangent", 1, 1, 2, 1),
    Sketcher.Constraint("Tangent", 2, 2, 3, 2),
    Sketcher.Constraint("Tangent", 3, 1, 0, 1),
    Sketcher.Constraint("Horizontal", 0),
    Sketcher.Constraint("Horizontal", 2),
    Sketcher.Constraint("Symmetric", 1, 3, 3, 3, -1, 1),
    Sketcher.Constraint("Radius", 1, Q("2.5 mm")),
    Sketcher.Constraint("DistanceX", 0, 1, 0, 2, Q("15 mm")),
])
pocket11 = body.newObject("PartDesign::Pocket", "Pocket010")
pocket11.Profile = sketch19
pocket11.Length = 5.5

# Sketch on YZ plane
sketch20 = body.newObject("Sketcher::SketchObject", "Sketch019")
sketch20.AttachmentSupport = (doc.getObject("YZ_Plane"), [""])
sketch20.MapMode = "FlatFace"
sketch20.AttachmentOffset = App.Placement(V(0, 0, 29), App.Rotation())
sketch20.addGeometry([
    Part.LineSegment(V(-20.5, -0.5, 0), V(-20.5, 9.5, 0)),  # 0
    Part.LineSegment(V(-20.5, 9.5, 0), V(-17.5, 9.5, 0)),  # 1
    Part.LineSegment(V(-17.5, 9.5, 0), V(-15.5, 6.5, 0)),  # 2
    Part.LineSegment(V(-15.5, 6.5, 0), V(-15.5, 2.5, 0)),  # 3
    Part.LineSegment(V(-15.5, 2.5, 0), V(-18.5, -0.5, 0)),  # 4
    Part.LineSegment(V(-18.5, -0.5, 0), V(-20.5, -0.5, 0)),  # 5
], False)
sketch20.addConstraint([
    Sketcher.Constraint("Coincident", 0, 2, 1, 1),
    Sketcher.Constraint("Coincident", 1, 2, 2, 1),
    Sketcher.Constraint("Coincident", 2, 2, 3, 1),
    Sketcher.Constraint("Coincident", 3, 2, 4, 1),
    Sketcher.Constraint("Coincident", 4, 2, 5, 1),
    Sketcher.Constraint("Coincident", 5, 2, 0, 1),
    Sketcher.Constraint("Vertical", 0),
    Sketcher.Constraint("Horizontal", 1),
    Sketcher.Constraint("Vertical", 3),
    Sketcher.Constraint("Horizontal", 5),
    Sketcher.Constraint("DistanceX", 1, 1, 1, 2, Q("3 mm")),
    Sketcher.Constraint("DistanceX", 5, 2, 5, 1, Q("2 mm")),
    Sketcher.Constraint("DistanceY", 0, 1, 0, 2, Q("10 mm")),
    Sketcher.Constraint("DistanceY", 3, 2, 3, 1, Q("4 mm")),
    Sketcher.Constraint("Angle", 4, Q("-135 deg")),
    Sketcher.Constraint("DistanceX", 1, 2, 2, 2, Q("2 mm")),
    Sketcher.Constraint("DistanceX", 0, 2, -1, 1, Q("20.5 mm")),
    Sketcher.Constraint("DistanceY", -1, 1, 0, 2, Q("9.5 mm")),
])
pad9 = body.newObject("PartDesign::Pad", "Pad008")
pad9.Profile = sketch20
pad9.Length = 58
pad9.Reversed = True

# Sketch on XY plane
sketch21 = body.newObject("Sketcher::SketchObject", "Sketch020")
sketch21.AttachmentSupport = (doc.getObject("XY_Plane"), [""])
sketch21.MapMode = "FlatFace"
sketch21.AttachmentOffset = App.Placement(V(0, 0, 29.5), App.Rotation())
sketch21.addGeometry([
    Part.LineSegment(V(21, -16, 0), V(21, -20.5, 0)),
    Part.LineSegment(V(21, -20.5, 0), V(29, -20.5, 0)),
    Part.LineSegment(V(29, -20.5, 0), V(29, -16, 0)),
    Part.LineSegment(V(29, -16, 0), V(21, -16, 0)),
], False)
sketch21.addConstraint([
    Sketcher.Constraint("Coincident", 0, 2, 1, 1),
    Sketcher.Constraint("Coincident", 1, 2, 2, 1),
    Sketcher.Constraint("Coincident", 2, 2, 3, 1),
    Sketcher.Constraint("Coincident", 3, 2, 0, 1),
    Sketcher.Constraint("Vertical", 0),
    Sketcher.Constraint("Horizontal", 1),
    Sketcher.Constraint("Vertical", 2),
    Sketcher.Constraint("Horizontal", 3),
    Sketcher.Constraint("DistanceX", 1, 1, 1, 2, Q("8 mm")),
    Sketcher.Constraint("DistanceY", 0, 2, 0, 1, Q("4.5 mm")),
    Sketcher.Constraint("DistanceX", -1, 1, 0, 2, Q("21 mm")),
    Sketcher.Constraint("DistanceY", 2, 2, -1, 1, Q("16 mm")),
])
pocket12 = body.newObject("PartDesign::Pocket", "Pocket011")
pocket12.Profile = sketch21
pocket12.Type = "UpToFirst"

# Sketch on XY plane
sketch22 = body.newObject("Sketcher::SketchObject", "Sketch021")
sketch22.AttachmentSupport = (doc.getObject("XY_Plane"), [""])
sketch22.MapMode = "FlatFace"
sketch22.AttachmentOffset = App.Placement(V(0, 0, 29.5), App.Rotation())
sketch22.addGeometry([
    Part.LineSegment(V(-29, -16, 0), V(-29, -20.5, 0)),
    Part.LineSegment(V(-29, -20.5, 0), V(-21, -20.5, 0)),
    Part.LineSegment(V(-21, -20.5, 0), V(-21, -16, 0)),
    Part.LineSegment(V(-21, -16, 0), V(-29, -16, 0)),
], False)
sketch22.addConstraint([
    Sketcher.Constraint("Coincident", 0, 2, 1, 1),
    Sketcher.Constraint("Coincident", 1, 2, 2, 1),
    Sketcher.Constraint("Coincident", 2, 2, 3, 1),
    Sketcher.Constraint("Coincident", 3, 2, 0, 1),
    Sketcher.Constraint("Vertical", 0),
    Sketcher.Constraint("Horizontal", 1),
    Sketcher.Constraint("Vertical", 2),
    Sketcher.Constraint("Horizontal", 3),
    Sketcher.Constraint("DistanceX", 1, 1, 1, 2, Q("8 mm")),
    Sketcher.Constraint("DistanceY", 0, 2, 0, 1, Q("4.5 mm")),
    Sketcher.Constraint("DistanceX", 0, 2, -1, 1, Q("29 mm")),
    Sketcher.Constraint("DistanceY", 2, 2, -1, 1, Q("16 mm")),
])
pocket13 = body.newObject("PartDesign::Pocket", "Pocket012")
pocket13.Profile = sketch22
pocket13.Type = "UpToFirst"

# Sketch on YZ plane
sketch23 = body.newObject("Sketcher::SketchObject", "Sketch022")
sketch23.AttachmentSupport = (doc.getObject("YZ_Plane"), [""])
sketch23.MapMode = "FlatFace"
sketch23.AttachmentOffset = App.Placement(V(0, 0, 21), App.Rotation())
sketch23.addGeometry([
    Part.LineSegment(V(-15.5, 9.5, 0), V(-20.5, 9.5, 0)),
    Part.LineSegment(V(-20.5, 9.5, 0), V(-20.5, -0.5, 0)),
    Part.LineSegment(V(-20.5, -0.5, 0), V(-15.5, -0.5, 0)),
    Part.LineSegment(V(-15.5, -0.5, 0), V(-15.5, 9.5, 0)),
], False)
sketch23.addConstraint([
    Sketcher.Constraint("Coincident", 0, 2, 1, 1),
    Sketcher.Constraint("Coincident", 1, 2, 2, 1),
    Sketcher.Constraint("Coincident", 2, 2, 3, 1),
    Sketcher.Constraint("Coincident", 3, 2, 0, 1),
    Sketcher.Constraint("Horizontal", 0),
    Sketcher.Constraint("Vertical", 1),
    Sketcher.Constraint("Horizontal", 2),
    Sketcher.Constraint("Vertical", 3),
    Sketcher.Constraint("DistanceX", 0, 2, 0, 1, Q("5 mm")),
    Sketcher.Constraint("DistanceY", 1, 2, 1, 1, Q("10 mm")),
    Sketcher.Constraint("DistanceX", 0, 2, -1, 1, Q("20.5 mm")),
    Sketcher.Constraint("DistanceY", -1, 1, 0, 2, Q("9.5 mm")),
])
pad10 = body.newObject("PartDesign::Pad", "Pad009")
pad10.Profile = sketch23
pad10.Length = 42
pad10.Reversed = True

# Sketch on XY plane
sketch24 = body.newObject("Sketcher::SketchObject", "Sketch023")
sketch24.AttachmentSupport = (doc.getObject("XY_Plane"), [""])
sketch24.MapMode = "FlatFace"
sketch24.AttachmentOffset = App.Placement(V(0, 0, 9.5), App.Rotation())
sketch24.addGeometry([
    Part.LineSegment(V(-21, -15.5, 0), V(-21, -20.5, 0)),
    Part.LineSegment(V(-21, -20.5, 0), V(21, -20.5, 0)),
    Part.LineSegment(V(21, -20.5, 0), V(21, -15.5, 0)),
    Part.LineSegment(V(21, -15.5, 0), V(-21, -15.5, 0)),
], False)
sketch24.addConstraint([
    Sketcher.Constraint("Coincident", 0, 2, 1, 1),
    Sketcher.Constraint("Coincident", 1, 2, 2, 1),
    Sketcher.Constraint("Coincident", 2, 2, 3, 1),
    Sketcher.Constraint("Coincident", 3, 2, 0, 1),
    Sketcher.Constraint("Vertical", 0),
    Sketcher.Constraint("Horizontal", 1),
    Sketcher.Constraint("Vertical", 2),
    Sketcher.Constraint("Horizontal", 3),
    Sketcher.Constraint("DistanceX", 1, 1, 1, 2, Q("42 mm")),
    Sketcher.Constraint("DistanceY", 0, 2, 0, 1, Q("5 mm")),
    Sketcher.Constraint("DistanceX", 0, 2, -1, 1, Q("21 mm")),
    Sketcher.Constraint("DistanceY", 0, 2, -1, 1, Q("20.5 mm")),
])
pad11 = body.newObject("PartDesign::Pad", "Pad010")
pad11.Profile = sketch24
pad11.Type = "UpToFirst"

# Sketch on XZ plane
sketch25 = body.newObject("Sketcher::SketchObject", "Sketch024")
sketch25.AttachmentSupport = (doc.getObject("XZ_Plane"), [""])
sketch25.MapMode = "FlatFace"
sketch25.addGeometry([
    Part.LineSegment(V(23, -29.5, 0), V(23, -17.5, 0)),  # 0
    Part.LineSegment(V(23, -17.5, 0), V(35, -17.5, 0)),  # 1
    Part.LineSegment(V(35, -17.5, 0), V(35, -29.5, 0)),  # 2
    Part.LineSegment(V(35, -29.5, 0), V(23, -29.5, 0)),  # 3
    Part.LineSegment(V(-35, -29.5, 0), V(-35, -17.5, 0)),  # 4
    Part.LineSegment(V(-35, -17.5, 0), V(-23, -17.5, 0)),  # 5
    Part.LineSegment(V(-23, -17.5, 0), V(-23, -29.5, 0)),  # 6
    Part.LineSegment(V(-23, -29.5, 0), V(-35, -29.5, 0)),  # 7
], False)
sketch25.addConstraint([
    Sketcher.Constraint("Coincident", 0, 2, 1, 1),
    Sketcher.Constraint("Coincident", 1, 2, 2, 1),
    Sketcher.Constraint("Coincident", 2, 2, 3, 1),
    Sketcher.Constraint("Coincident", 3, 2, 0, 1),
    Sketcher.Constraint("Coincident", 4, 2, 5, 1),
    Sketcher.Constraint("Coincident", 5, 2, 6, 1),
    Sketcher.Constraint("Coincident", 6, 2, 7, 1),
    Sketcher.Constraint("Coincident", 7, 2, 4, 1),
    Sketcher.Constraint("Vertical", 0),
    Sketcher.Constraint("Horizontal", 1),
    Sketcher.Constraint("Vertical", 2),
    Sketcher.Constraint("Horizontal", 3),
    Sketcher.Constraint("Vertical", 4),
    Sketcher.Constraint("Horizontal", 5),
    Sketcher.Constraint("Vertical", 6),
    Sketcher.Constraint("Horizontal", 7),
    Sketcher.Constraint("Symmetric", 1, 2, 4, 2, -2),
    Sketcher.Constraint("Symmetric", 3, 2, 6, 2, -2),
    Sketcher.Constraint("Equal", 7, 0),
    Sketcher.Constraint("DistanceX", 1, 1, 1, 2, Q("12 mm")),
    Sketcher.Constraint("DistanceX", -1, 1, 0, 2, Q("23 mm")),
    Sketcher.Constraint("DistanceY", 0, 2, -1, 1, Q("17.5 mm")),
])
pocket14 = body.newObject("PartDesign::Pocket", "Pocket013")
pocket14.Profile = sketch25
pocket14.Length = 6
pocket14.Reversed = True

# Sketch on XZ plane
sketch26 = body.newObject("Sketcher::SketchObject", "Sketch025")
sketch26.AttachmentSupport = (doc.getObject("XZ_Plane"), [""])
sketch26.MapMode = "FlatFace"
sketch26.AttachmentOffset = App.Placement(V(0, 0, -20.5), App.Rotation())
sketch26.addGeometry([
    Part.LineSegment(V(-5, 21.5, 0), V(-5, 16.5, 0)),  # 0
    Part.LineSegment(V(-5, 16.5, 0), V(-21, 16.5, 0)),  # 1
    Part.LineSegment(V(-21, 16.5, 0), V(-21, 23.5, 0)),  # 2
    Part.LineSegment(V(-21, 23.5, 0), V(-11, 23.5, 0)),  # 3
    Part.LineSegment(V(-11, 23.5, 0), V(-11, 21.5, 0)),  # 4
    Part.LineSegment(V(-11, 21.5, 0), V(-5, 21.5, 0)),  # 5
    Part.LineSegment(V(5, 16.5, 0), V(5, 21.5, 0)),  # 6
    Part.LineSegment(V(5, 21.5, 0), V(11, 21.5, 0)),  # 7
    Part.LineSegment(V(11, 21.5, 0), V(11, 23.5, 0)),  # 8
    Part.LineSegment(V(11, 23.5, 0), V(21, 23.5, 0)),  # 9
    Part.LineSegment(V(21, 23.5, 0), V(21, 16.5, 0)),  # 10
    Part.LineSegment(V(21, 16.5, 0), V(5, 16.5, 0)),  # 11
], False)
sketch26.addConstraint([
    Sketcher.Constraint("Coincident", 0, 2, 1, 1),
    Sketcher.Constraint("Coincident", 1, 2, 2, 1),
    Sketcher.Constraint("Coincident", 2, 2, 3, 1),
    Sketcher.Constraint("Coincident", 3, 2, 4, 1),
    Sketcher.Constraint("Coincident", 4, 2, 5, 1),
    Sketcher.Constraint("Coincident", 5, 2, 0, 1),
    Sketcher.Constraint("Coincident", 6, 2, 7, 1),
    Sketcher.Constraint("Coincident", 7, 2, 8, 1),
    Sketcher.Constraint("Coincident", 8, 2, 9, 1),
    Sketcher.Constraint("Coincident", 9, 2, 10, 1),
    Sketcher.Constraint("Coincident", 10, 2, 11, 1),
    Sketcher.Constraint("Coincident", 11, 2, 6, 1),
    Sketcher.Constraint("Vertical", 0),
    Sketcher.Constraint("Horizontal", 1),
    Sketcher.Constraint("Vertical", 2),
    Sketcher.Constraint("Horizontal", 3),
    Sketcher.Constraint("Vertical", 4),
    Sketcher.Constraint("Horizontal", 5),
    Sketcher.Constraint("Vertical", 6),
    Sketcher.Constraint("Horizontal", 7),
    Sketcher.Constraint("Vertical", 8),
    Sketcher.Constraint("Horizontal", 9),
    Sketcher.Constraint("Vertical", 10),
    Sketcher.Constraint("Horizontal", 11),
    Sketcher.Constraint("Symmetric", 5, 2, 6, 2, -2),
    Sketcher.Constraint("Symmetric", 3, 2, 8, 2, -2),
    Sketcher.Constraint("Symmetric", 1, 2, 10, 2, -2),
    Sketcher.Constraint("DistanceX", 1, 2, 1, 1, Q("16 mm")),
    Sketcher.Constraint("DistanceX", 3, 1, 3, 2, Q("10 mm")),
    Sketcher.Constraint("DistanceY", 0, 2, 0, 1, Q("5 mm")),
    Sketcher.Constraint("DistanceY", 2, 1, 2, 2, Q("7 mm")),
    Sketcher.Constraint("DistanceX", 0, 2, -1, 1, Q("5 mm")),
    Sketcher.Constraint("DistanceY", -1, 1, 0, 2, Q("16.5 mm")),
])
pocket15 = body.newObject("PartDesign::Pocket", "Pocket014")
pocket15.Profile = sketch26
pocket15.Length = 6
pocket15.Reversed = True

doc.recompute()
